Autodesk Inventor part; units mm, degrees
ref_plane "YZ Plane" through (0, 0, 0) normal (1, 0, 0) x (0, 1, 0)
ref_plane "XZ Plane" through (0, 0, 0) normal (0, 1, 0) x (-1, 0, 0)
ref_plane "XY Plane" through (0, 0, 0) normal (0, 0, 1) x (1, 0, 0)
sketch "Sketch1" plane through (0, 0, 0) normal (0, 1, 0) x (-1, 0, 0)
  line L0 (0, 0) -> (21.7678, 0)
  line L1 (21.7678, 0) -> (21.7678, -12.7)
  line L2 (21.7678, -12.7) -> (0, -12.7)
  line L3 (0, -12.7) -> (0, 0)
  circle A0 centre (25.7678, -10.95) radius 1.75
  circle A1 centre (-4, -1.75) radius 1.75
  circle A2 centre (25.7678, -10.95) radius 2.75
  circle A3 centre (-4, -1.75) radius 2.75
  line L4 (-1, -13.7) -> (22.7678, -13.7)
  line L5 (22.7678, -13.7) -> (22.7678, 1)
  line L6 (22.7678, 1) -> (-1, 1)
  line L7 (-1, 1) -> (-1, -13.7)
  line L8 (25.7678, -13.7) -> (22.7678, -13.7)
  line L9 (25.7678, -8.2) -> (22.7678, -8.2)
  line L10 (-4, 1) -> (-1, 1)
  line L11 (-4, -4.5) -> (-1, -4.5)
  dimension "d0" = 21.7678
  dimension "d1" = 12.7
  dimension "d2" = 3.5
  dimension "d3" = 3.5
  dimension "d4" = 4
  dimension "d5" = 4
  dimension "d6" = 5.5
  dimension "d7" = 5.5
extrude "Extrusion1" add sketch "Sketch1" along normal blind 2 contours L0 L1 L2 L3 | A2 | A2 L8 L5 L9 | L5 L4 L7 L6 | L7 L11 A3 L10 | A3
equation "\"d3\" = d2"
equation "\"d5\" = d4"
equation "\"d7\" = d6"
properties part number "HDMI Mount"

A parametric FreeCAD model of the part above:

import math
import FreeCAD as App
import Part
import Sketcher

V = App.Vector

doc = App.newDocument("Part")
body = doc.addObject("PartDesign::Body", "Body")

sketch1 = body.newObject("Sketcher::SketchObject", "Sketch")
sketch1.AttachmentSupport = (doc.getObject("XZ_Plane"), [""])
sketch1.MapMode = "FlatFace"
sketch1.addGeometry([
    Part.LineSegment(V(1, -13.7, 0), V(-25.7678, -13.7, 0)),
    Part.ArcOfCircle(Part.Circle(V(-25.7678, -10.95, 0), V(0, 0, 1), 2.75), math.radians(90), math.radians(270)),
    Part.LineSegment(V(-25.7678, -8.2, 0), V(-22.7678, -8.2, 0)),
    Part.LineSegment(V(-22.7678, -8.2, 0), V(-22.7678, 1, 0)),
    Part.LineSegment(V(-22.7678, 1, 0), V(4, 1, 0)),
    Part.ArcOfCircle(Part.Circle(V(4, -1.75, 0), V(0, 0, 1), 2.75), math.radians(-90), math.radians(90)),
    Part.LineSegment(V(4, -4.5, 0), V(1, -4.5, 0)),
    Part.LineSegment(V(1, -4.5, 0), V(1, -13.7, 0)),
    Part.Circle(V(-25.7678, -10.95, 0), V(0, 0, 1), 1.75),
    Part.Circle(V(4, -1.75, 0), V(0, 0, 1), 1.75),
], False)
sketch1.addConstraint([
    Sketcher.Constraint("Tangent", 0, 2, 1, 2),
    Sketcher.Constraint("Tangent", 1, 1, 2, 1),
    Sketcher.Constraint("Coincident", 2, 2, 3, 1),
    Sketcher.Constraint("Coincident", 3, 2, 4, 1),
    Sketcher.Constraint("Tangent", 4, 2, 5, 2),
    Sketcher.Constraint("Tangent", 5, 1, 6, 1),
    Sketcher.Constraint("Coincident", 6, 2, 7, 1),
    Sketcher.Constraint("Coincident", 7, 2, 0, 1),
    Sketcher.Constraint("Horizontal", 0),
    Sketcher.Constraint("Horizontal", 2),
    Sketcher.Constraint("Vertical", 3),
    Sketcher.Constraint("Horizontal", 4),
    Sketcher.Constraint("Horizontal", 6),
    Sketcher.Constraint("Vertical", 7),
    Sketcher.Constraint("Coincident", 8, 3, 1, 3),
    Sketcher.Constraint("Coincident", 9, 3, 5, 3),
    Sketcher.Constraint("Equal", 1, 5),
    Sketcher.Constraint("Equal", 8, 9),
    Sketcher.Constraint("Equal", 0, 4),
    Sketcher.Constraint("Diameter", 8, 3.5),
    Sketcher.Constraint("Radius", 1, 2.75),
    Sketcher.Constraint("DistanceX", -1, 1, 5, 3, 4.0),
    Sketcher.Constraint("DistanceX", 2, 1, 2, 2, 3.0),
    Sketcher.Constraint("DistanceY", 3, 1, 3, 2, 9.2),
    Sketcher.Constraint("DistanceY", -1, 1, 3, 2, 1.0),
    Sketcher.Constraint("DistanceX", 0, 2, 0, 1, 26.7678),
])
pad1 = body.newObject("PartDesign::Pad", "Pad")
pad1.Profile = sketch1
pad1.Length = 2
pad1.Reversed = True

doc.recompute()
